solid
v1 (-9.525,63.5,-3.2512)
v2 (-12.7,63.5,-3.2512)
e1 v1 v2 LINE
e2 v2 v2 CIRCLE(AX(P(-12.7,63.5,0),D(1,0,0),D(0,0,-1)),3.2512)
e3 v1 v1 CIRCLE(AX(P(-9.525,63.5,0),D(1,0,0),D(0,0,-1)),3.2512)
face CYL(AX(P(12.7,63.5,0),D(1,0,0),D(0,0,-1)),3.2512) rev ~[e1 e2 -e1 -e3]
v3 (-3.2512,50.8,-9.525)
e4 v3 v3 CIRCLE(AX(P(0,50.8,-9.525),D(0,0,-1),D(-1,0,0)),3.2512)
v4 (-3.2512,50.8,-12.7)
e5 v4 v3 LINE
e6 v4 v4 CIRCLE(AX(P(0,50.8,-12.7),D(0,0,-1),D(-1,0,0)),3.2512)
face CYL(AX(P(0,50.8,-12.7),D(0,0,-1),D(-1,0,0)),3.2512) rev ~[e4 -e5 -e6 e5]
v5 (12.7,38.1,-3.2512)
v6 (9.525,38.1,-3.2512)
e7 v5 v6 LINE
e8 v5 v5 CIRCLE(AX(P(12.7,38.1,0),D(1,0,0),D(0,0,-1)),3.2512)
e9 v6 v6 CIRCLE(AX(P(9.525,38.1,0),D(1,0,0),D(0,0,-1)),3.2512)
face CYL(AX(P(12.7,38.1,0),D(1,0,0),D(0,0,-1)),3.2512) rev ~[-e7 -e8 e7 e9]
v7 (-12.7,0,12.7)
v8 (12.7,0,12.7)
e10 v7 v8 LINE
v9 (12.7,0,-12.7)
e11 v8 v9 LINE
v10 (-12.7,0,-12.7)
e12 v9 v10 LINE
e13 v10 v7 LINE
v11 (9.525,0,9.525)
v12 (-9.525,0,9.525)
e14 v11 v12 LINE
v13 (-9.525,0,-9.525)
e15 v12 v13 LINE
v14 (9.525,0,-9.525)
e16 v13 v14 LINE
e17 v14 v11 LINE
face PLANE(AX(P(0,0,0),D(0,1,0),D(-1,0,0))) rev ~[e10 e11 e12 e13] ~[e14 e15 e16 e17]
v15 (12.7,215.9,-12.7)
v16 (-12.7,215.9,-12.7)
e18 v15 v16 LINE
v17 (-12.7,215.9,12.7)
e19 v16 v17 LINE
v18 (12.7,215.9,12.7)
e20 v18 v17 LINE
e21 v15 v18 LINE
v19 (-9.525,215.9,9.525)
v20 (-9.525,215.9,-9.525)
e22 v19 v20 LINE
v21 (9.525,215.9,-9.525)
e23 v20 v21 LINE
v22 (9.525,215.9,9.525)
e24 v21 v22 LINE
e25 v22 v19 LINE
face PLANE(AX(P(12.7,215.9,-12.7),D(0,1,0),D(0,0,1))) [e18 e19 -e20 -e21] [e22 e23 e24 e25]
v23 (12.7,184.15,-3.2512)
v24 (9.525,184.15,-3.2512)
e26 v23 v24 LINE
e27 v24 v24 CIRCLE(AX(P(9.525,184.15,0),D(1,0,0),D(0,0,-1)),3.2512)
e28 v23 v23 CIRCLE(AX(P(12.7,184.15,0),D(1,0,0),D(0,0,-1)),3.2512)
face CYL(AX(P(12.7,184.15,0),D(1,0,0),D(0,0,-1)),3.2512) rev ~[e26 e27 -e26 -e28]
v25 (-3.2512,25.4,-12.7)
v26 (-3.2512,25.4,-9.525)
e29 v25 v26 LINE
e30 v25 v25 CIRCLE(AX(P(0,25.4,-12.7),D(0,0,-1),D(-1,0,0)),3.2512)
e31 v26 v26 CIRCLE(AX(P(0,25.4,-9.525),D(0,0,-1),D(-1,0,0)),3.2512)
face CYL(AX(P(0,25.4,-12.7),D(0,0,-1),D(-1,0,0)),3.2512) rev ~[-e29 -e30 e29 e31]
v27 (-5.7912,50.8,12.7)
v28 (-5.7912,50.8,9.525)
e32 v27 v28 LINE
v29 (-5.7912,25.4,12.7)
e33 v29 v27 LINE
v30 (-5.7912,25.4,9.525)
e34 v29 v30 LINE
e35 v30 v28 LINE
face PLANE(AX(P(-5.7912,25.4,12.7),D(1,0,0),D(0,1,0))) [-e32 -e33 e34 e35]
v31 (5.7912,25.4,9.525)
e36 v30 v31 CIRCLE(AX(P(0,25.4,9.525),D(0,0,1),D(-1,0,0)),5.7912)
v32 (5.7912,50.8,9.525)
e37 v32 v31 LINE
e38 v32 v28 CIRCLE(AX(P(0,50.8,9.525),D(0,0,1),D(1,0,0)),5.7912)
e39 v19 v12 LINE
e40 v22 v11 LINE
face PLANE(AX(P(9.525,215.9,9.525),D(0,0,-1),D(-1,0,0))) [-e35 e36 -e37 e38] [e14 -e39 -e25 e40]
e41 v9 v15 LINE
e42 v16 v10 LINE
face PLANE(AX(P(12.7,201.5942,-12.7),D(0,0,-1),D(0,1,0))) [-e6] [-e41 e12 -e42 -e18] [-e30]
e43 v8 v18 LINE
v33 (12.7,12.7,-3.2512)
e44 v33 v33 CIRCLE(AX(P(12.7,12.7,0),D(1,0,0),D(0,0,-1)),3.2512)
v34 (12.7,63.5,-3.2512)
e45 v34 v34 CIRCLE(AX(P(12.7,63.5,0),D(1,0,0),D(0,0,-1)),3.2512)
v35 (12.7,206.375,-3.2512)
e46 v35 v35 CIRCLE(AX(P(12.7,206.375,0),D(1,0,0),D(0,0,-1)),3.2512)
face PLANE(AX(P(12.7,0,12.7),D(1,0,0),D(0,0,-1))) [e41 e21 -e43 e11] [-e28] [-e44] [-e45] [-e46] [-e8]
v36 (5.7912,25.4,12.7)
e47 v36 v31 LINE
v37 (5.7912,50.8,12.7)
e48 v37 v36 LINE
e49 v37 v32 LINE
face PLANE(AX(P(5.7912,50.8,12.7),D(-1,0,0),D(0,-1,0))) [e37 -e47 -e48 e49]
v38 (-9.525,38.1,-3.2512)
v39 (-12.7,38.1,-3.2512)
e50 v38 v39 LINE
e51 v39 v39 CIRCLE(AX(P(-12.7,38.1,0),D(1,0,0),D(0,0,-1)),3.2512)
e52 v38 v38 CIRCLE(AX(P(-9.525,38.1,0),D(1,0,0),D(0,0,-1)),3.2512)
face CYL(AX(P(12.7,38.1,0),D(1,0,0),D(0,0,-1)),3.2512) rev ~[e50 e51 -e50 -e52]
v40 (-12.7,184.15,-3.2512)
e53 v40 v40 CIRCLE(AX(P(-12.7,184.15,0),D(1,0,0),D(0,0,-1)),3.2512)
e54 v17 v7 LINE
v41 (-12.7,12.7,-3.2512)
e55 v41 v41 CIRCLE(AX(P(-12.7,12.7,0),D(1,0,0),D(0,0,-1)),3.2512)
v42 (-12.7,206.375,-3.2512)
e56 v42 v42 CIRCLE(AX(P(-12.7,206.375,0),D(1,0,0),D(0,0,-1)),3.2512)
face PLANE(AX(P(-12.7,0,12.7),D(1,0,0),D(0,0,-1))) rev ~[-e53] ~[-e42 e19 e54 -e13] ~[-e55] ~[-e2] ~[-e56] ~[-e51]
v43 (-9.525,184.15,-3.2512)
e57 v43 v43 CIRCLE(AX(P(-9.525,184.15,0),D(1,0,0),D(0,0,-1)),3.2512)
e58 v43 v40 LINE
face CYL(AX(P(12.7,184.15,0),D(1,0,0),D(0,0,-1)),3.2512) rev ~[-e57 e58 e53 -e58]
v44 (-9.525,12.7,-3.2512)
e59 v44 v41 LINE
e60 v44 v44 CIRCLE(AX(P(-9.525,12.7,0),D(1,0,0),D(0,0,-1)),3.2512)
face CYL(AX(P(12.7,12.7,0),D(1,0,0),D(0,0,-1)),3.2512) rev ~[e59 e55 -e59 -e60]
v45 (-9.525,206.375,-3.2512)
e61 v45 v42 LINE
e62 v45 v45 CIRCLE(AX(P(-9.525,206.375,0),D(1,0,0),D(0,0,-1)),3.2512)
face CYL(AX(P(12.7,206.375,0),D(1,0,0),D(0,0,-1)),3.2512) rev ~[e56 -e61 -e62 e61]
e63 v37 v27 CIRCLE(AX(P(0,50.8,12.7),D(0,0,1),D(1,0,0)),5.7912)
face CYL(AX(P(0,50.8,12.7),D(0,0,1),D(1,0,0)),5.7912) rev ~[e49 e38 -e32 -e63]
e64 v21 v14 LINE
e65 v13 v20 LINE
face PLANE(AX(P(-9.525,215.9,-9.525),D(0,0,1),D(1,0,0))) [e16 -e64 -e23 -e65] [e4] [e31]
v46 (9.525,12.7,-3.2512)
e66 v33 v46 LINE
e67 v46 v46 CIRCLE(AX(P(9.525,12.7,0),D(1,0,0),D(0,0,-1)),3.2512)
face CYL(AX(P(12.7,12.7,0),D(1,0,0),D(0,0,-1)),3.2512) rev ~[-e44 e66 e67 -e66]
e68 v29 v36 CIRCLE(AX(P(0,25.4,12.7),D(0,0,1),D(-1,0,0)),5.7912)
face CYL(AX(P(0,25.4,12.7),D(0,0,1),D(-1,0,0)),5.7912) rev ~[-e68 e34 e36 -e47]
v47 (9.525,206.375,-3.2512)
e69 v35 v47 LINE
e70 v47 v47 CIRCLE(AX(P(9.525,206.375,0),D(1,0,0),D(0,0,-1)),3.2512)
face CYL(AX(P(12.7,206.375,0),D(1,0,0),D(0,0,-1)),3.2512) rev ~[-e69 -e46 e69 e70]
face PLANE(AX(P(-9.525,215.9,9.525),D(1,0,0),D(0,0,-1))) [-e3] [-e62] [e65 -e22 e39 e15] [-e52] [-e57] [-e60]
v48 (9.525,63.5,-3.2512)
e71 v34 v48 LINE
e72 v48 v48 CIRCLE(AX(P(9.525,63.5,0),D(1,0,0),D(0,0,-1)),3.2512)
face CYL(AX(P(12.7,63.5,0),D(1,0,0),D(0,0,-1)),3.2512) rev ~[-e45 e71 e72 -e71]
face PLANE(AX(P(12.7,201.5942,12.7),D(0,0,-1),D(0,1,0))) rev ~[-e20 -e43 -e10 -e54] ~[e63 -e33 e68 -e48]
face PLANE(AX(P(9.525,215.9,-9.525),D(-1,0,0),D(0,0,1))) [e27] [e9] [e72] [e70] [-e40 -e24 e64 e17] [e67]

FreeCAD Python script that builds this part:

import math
import FreeCAD as App
import Part
import Sketcher
Q = App.Units.Quantity

doc = App.newDocument("Part")
body = doc.addObject("PartDesign::Body", "Body")

# Sketch on XZ plane
sketch1 = body.newObject("Sketcher::SketchObject", "Sketch")
sketch1.AttachmentSupport = (doc.getObject("XZ_Plane"), [""])
sketch1.MapMode = "FlatFace"
sketch1.addGeometry(Part.LineSegment(App.Vector(13, 13, 0), App.Vector(13, -13, 0)), False)
sketch1.addGeometry(Part.LineSegment(App.Vector(13, -13, 0), App.Vector(-13, -13, 0)), False)
sketch1.addGeometry(Part.LineSegment(App.Vector(-13, -13, 0), App.Vector(-13, 13, 0)), False)
sketch1.addGeometry(Part.LineSegment(App.Vector(-13, 13, 0), App.Vector(13, 13, 0)), False)
sketch1.addGeometry(Part.LineSegment(App.Vector(10, 10, 0), App.Vector(-10, 10, 0)), False)
sketch1.addGeometry(Part.LineSegment(App.Vector(-10, 10, 0), App.Vector(-10, -10, 0)), False)
sketch1.addGeometry(Part.LineSegment(App.Vector(-10, -10, 0), App.Vector(10, -10, 0)), False)
sketch1.addGeometry(Part.LineSegment(App.Vector(10, -10, 0), App.Vector(10, 10, 0)), False)
sketch1.addConstraint(Sketcher.Constraint("Coincident", 0, 2, 1, 1))
sketch1.addConstraint(Sketcher.Constraint("Coincident", 1, 2, 2, 1))
sketch1.addConstraint(Sketcher.Constraint("Coincident", 2, 2, 3, 1))
sketch1.addConstraint(Sketcher.Constraint("Coincident", 3, 2, 0, 1))
sketch1.addConstraint(Sketcher.Constraint("Coincident", 4, 2, 5, 1))
sketch1.addConstraint(Sketcher.Constraint("Coincident", 5, 2, 6, 1))
sketch1.addConstraint(Sketcher.Constraint("Coincident", 6, 2, 7, 1))
sketch1.addConstraint(Sketcher.Constraint("Coincident", 7, 2, 4, 1))
sketch1.addConstraint(Sketcher.Constraint("Vertical", 0))
sketch1.addConstraint(Sketcher.Constraint("Horizontal", 1))
sketch1.addConstraint(Sketcher.Constraint("Vertical", 2))
sketch1.addConstraint(Sketcher.Constraint("Horizontal", 3))
sketch1.addConstraint(Sketcher.Constraint("Horizontal", 4))
sketch1.addConstraint(Sketcher.Constraint("Vertical", 5))
sketch1.addConstraint(Sketcher.Constraint("Horizontal", 6))
sketch1.addConstraint(Sketcher.Constraint("Vertical", 7))
sketch1.addConstraint(Sketcher.Constraint("Symmetric", 0, 2, 2, 2, -1, 1))
sketch1.addConstraint(Sketcher.Constraint("Symmetric", 4, 2, 6, 2, -1, 1))
sketch1.addConstraint(Sketcher.Constraint("Equal", 3, 0))
sketch1.addConstraint(Sketcher.Constraint("Equal", 6, 5))
sketch1.addConstraint(Sketcher.Constraint("DistanceX", 1, 2, 1, 1, Q("1 in")))
sketch1.addConstraint(Sketcher.Constraint("DistanceX", 2, 2, 4, 2, Q("0.125 in")))
pad1 = body.newObject("PartDesign::Pad", "Pad")
pad1.Profile = sketch1
pad1.Length = 201.5942
pad1.Reversed = True

# Sketch on YZ plane
sketch2 = body.newObject("Sketcher::SketchObject", "Sketch001")
sketch2.AttachmentSupport = (doc.getObject("YZ_Plane"), [""])
sketch2.MapMode = "FlatFace"
sketch2.AttachmentOffset = App.Placement(App.Vector(0, 0, 0.5 * 25.4), App.Rotation())
sketch2.addGeometry(Part.Circle(App.Vector(184.2, 0, 0), App.Vector(0, 0, 1), 3.3), False)
sketch2.addConstraint(Sketcher.Constraint("PointOnObject", 0, 3, -1))
sketch2.addConstraint(Sketcher.Constraint("Diameter", 0, Q("0.256 in")))
sketch2.addConstraint(Sketcher.Constraint("DistanceX", -1, 1, 0, 3, Q("7.25 in")))
pocket1 = body.newObject("PartDesign::Pocket", "Pocket")
pocket1.Profile = sketch2
pocket1.Type = "ThroughAll"

# Sketch on XY plane
sketch3 = body.newObject("Sketcher::SketchObject", "Sketch002")
sketch3.AttachmentSupport = (doc.getObject("XY_Plane"), [""])
sketch3.MapMode = "FlatFace"
sketch3.AttachmentOffset = App.Placement(App.Vector(0, 0, -0.5 * 25.4), App.Rotation())
sketch3.addGeometry(Part.Circle(App.Vector(0, 25.4, 0), App.Vector(0, 0, 1), 3.3), False)
sketch3.addGeometry(Part.Circle(App.Vector(0, 50.8, 0), App.Vector(0, 0, 1), 3.3), False)
sketch3.addConstraint(Sketcher.Constraint("Equal", 0, 1))
sketch3.addConstraint(Sketcher.Constraint("PointOnObject", 0, 3, -2))
sketch3.addConstraint(Sketcher.Constraint("PointOnObject", 1, 3, -2))
sketch3.addConstraint(Sketcher.Constraint("Diameter", 0, Q("0.256 in")))
sketch3.addConstraint(Sketcher.Constraint("DistanceY", -1, 1, 0, 3, Q("1 in")))
sketch3.addConstraint(Sketcher.Constraint("DistanceY", 0, 3, 1, 3, Q("1 in")))
pocket2 = body.newObject("PartDesign::Pocket", "Pocket001")
pocket2.Profile = sketch3
pocket2.Length = Q("1 in")
pocket2.Reversed = True

# Sketch on XY plane
sketch4 = body.newObject("Sketcher::SketchObject", "Sketch003")
sketch4.AttachmentSupport = (doc.getObject("XY_Plane"), [""])
sketch4.MapMode = "FlatFace"
sketch4.AttachmentOffset = App.Placement(App.Vector(0, 0, 0.5 * 25.4), App.Rotation())
sketch4.addGeometry(Part.LineSegment(App.Vector(6, 25, 0), App.Vector(6, 51, 0)), False)
sketch4.addGeometry(Part.ArcOfCircle(Part.Circle(App.Vector(0, 51, 0), App.Vector(0, 0, 1), 6), math.radians(0), math.radians(180)), False)
sketch4.addGeometry(Part.LineSegment(App.Vector(-6, 51, 0), App.Vector(-6, 25, 0)), False)
sketch4.addGeometry(Part.ArcOfCircle(Part.Circle(App.Vector(0, 25, 0), App.Vector(0, 0, 1), 6), math.radians(180), math.radians(360)), False)
sketch4.addConstraint(Sketcher.Constraint("Tangent", 0, 2, 1, 1))
sketch4.addConstraint(Sketcher.Constraint("Tangent", 1, 2, 2, 1))
sketch4.addConstraint(Sketcher.Constraint("Tangent", 2, 2, 3, 1))
sketch4.addConstraint(Sketcher.Constraint("Tangent", 3, 2, 0, 1))
sketch4.addConstraint(Sketcher.Constraint("Vertical", 0))
sketch4.addConstraint(Sketcher.Constraint("Vertical", 2))
sketch4.addConstraint(Sketcher.Constraint("PointOnObject", 1, 3, -2))
sketch4.addConstraint(Sketcher.Constraint("DistanceY", 0, 1, 0, 2, Q("1 in")))
sketch4.addConstraint(Sketcher.Constraint("DistanceY", -1, 1, 1, 3, Q("2 in")))
sketch4.addConstraint(Sketcher.Constraint("Radius", 1, Q("0.228 in")))
pocket3 = body.newObject("PartDesign::Pocket", "Pocket002")
pocket3.Profile = sketch4
pocket3.Length = Q("0.125 in")

# Sketch on YZ plane
sketch5 = body.newObject("Sketcher::SketchObject", "Sketch004")
sketch5.AttachmentSupport = (doc.getObject("YZ_Plane"), [""])
sketch5.MapMode = "FlatFace"
sketch5.AttachmentOffset = App.Placement(App.Vector(0, 0, 0.5 * 25.4), App.Rotation())
sketch5.addGeometry(Part.Circle(App.Vector(12.7, 0, 0), App.Vector(0, 0, 1), 3.3), False)
sketch5.addGeometry(Part.Circle(App.Vector(38.1, 0, 0), App.Vector(0, 0, 1), 3.3), False)
sketch5.addGeometry(Part.Circle(App.Vector(63.5, 0, 0), App.Vector(0, 0, 1), 3.3), False)
sketch5.addConstraint(Sketcher.Constraint("Equal", 0, 1))
sketch5.addConstraint(Sketcher.Constraint("Equal", 1, 2))
sketch5.addConstraint(Sketcher.Constraint("PointOnObject", 0, 3, -1))
sketch5.addConstraint(Sketcher.Constraint("PointOnObject", 1, 3, -1))
sketch5.addConstraint(Sketcher.Constraint("PointOnObject", 2, 3, -1))
sketch5.addConstraint(Sketcher.Constraint("Diameter", 0, Q("0.256 in")))
sketch5.addConstraint(Sketcher.Constraint("DistanceX", 0, 3, 1, 3, Q("1 in")))
sketch5.addConstraint(Sketcher.Constraint("DistanceX", 1, 3, 2, 3, Q("1 in")))
sketch5.addConstraint(Sketcher.Constraint("DistanceX", -1, 1, 0, 3, Q("0.5 in")))
pocket4 = body.newObject("PartDesign::Pocket", "Pocket003")
pocket4.Profile = sketch5
pocket4.Length = Q("1 in")

# Sketch on YZ plane
sketch6 = body.newObject("Sketcher::SketchObject", "Sketch005")
sketch6.AttachmentSupport = (doc.getObject("YZ_Plane"), [""])
sketch6.MapMode = "FlatFace"
sketch6.AttachmentOffset = App.Placement(App.Vector(0, 0, 0.5 * 25.4), App.Rotation())
sketch6.addGeometry(Part.LineSegment(App.Vector(215.9, 12.7, 0), App.Vector(201.6, 12.7, 0)), False)
sketch6.addGeometry(Part.LineSegment(App.Vector(201.6, 12.7, 0), App.Vector(201.6, -12.7, 0)), False)
sketch6.addGeometry(Part.LineSegment(App.Vector(201.6, -12.7, 0), App.Vector(215.9, -12.7, 0)), False)
sketch6.addGeometry(Part.LineSegment(App.Vector(215.9, -12.7, 0), App.Vector(215.9, 12.7, 0)), False)
sketch6.addGeometry(Part.Circle(App.Vector(206.4, 0, 0), App.Vector(0, 0, 1), 3.3), False)
sketch6.addConstraint(Sketcher.Constraint("Coincident", 0, 2, 1, 1))
sketch6.addConstraint(Sketcher.Constraint("Coincident", 1, 2, 2, 1))
sketch6.addConstraint(Sketcher.Constraint("Coincident", 2, 2, 3, 1))
sketch6.addConstraint(Sketcher.Constraint("Coincident", 3, 2, 0, 1))
sketch6.addConstraint(Sketcher.Constraint("Horizontal", 0))
sketch6.addConstraint(Sketcher.Constraint("Vertical", 1))
sketch6.addConstraint(Sketcher.Constraint("Horizontal", 2))
sketch6.addConstraint(Sketcher.Constraint("Vertical", 3))
sketch6.addConstraint(Sketcher.Constraint("PointOnObject", 4, 3, -1))
sketch6.addConstraint(Sketcher.Constraint("DistanceY", 1, 2, 1, 1, Q("1 in")))
sketch6.addConstraint(Sketcher.Constraint("Diameter", 4, Q("0.256 in")))
sketch6.addConstraint(Sketcher.Constraint("DistanceX", 0, 2, 0, 1, Q("14.3058 mm")))
sketch6.addConstraint(Sketcher.Constraint("DistanceY", -1, 1, 0, 2, Q("0.5 in")))
sketch6.addConstraint(Sketcher.Constraint("DistanceX", -1, 1, 2, 2, Q("8.5 in")))
sketch6.addConstraint(Sketcher.Constraint("DistanceX", -1, 1, 4, 3, Q("8.125 in")))
pad2 = body.newObject("PartDesign::Pad", "Pad001")
pad2.Profile = sketch6
pad2.Length = Q("1 in")
pad2.Reversed = True

# Sketch on XZ plane
sketch7 = body.newObject("Sketcher::SketchObject", "Sketch006")
sketch7.AttachmentSupport = (doc.getObject("XZ_Plane"), [""])
sketch7.MapMode = "FlatFace"
sketch7.AttachmentOffset = App.Placement(App.Vector(0, 0, -8.5 * 25.4), App.Rotation())
sketch7.addGeometry(Part.LineSegment(App.Vector(10, -10, 0), App.Vector(-10, -10, 0)), False)
sketch7.addGeometry(Part.LineSegment(App.Vector(-10, -10, 0), App.Vector(-10, 10, 0)), False)
sketch7.addGeometry(Part.LineSegment(App.Vector(-10, 10, 0), App.Vector(10, 10, 0)), False)
sketch7.addGeometry(Part.LineSegment(App.Vector(10, 10, 0), App.Vector(10, -10, 0)), False)
sketch7.addConstraint(Sketcher.Constraint("Coincident", 0, 2, 1, 1))
sketch7.addConstraint(Sketcher.Constraint("Coincident", 1, 2, 2, 1))
sketch7.addConstraint(Sketcher.Constraint("Coincident", 2, 2, 3, 1))
sketch7.addConstraint(Sketcher.Constraint("Coincident", 3, 2, 0, 1))
sketch7.addConstraint(Sketcher.Constraint("Horizontal", 0))
sketch7.addConstraint(Sketcher.Constraint("Vertical", 1))
sketch7.addConstraint(Sketcher.Constraint("Horizontal", 2))
sketch7.addConstraint(Sketcher.Constraint("Vertical", 3))
sketch7.addConstraint(Sketcher.Constraint("Symmetric", 0, 2, 2, 2, -1, 1))
sketch7.addConstraint(Sketcher.Constraint("Equal", 2, 1))
sketch7.addConstraint(Sketcher.Constraint("DistanceX", 0, 2, 0, 1, Q("0.75 in")))
pocket5 = body.newObject("PartDesign::Pocket", "Pocket004")
pocket5.Profile = sketch7
pocket5.Length = Q("1 in")
pocket5.Reversed = True

doc.recompute()
